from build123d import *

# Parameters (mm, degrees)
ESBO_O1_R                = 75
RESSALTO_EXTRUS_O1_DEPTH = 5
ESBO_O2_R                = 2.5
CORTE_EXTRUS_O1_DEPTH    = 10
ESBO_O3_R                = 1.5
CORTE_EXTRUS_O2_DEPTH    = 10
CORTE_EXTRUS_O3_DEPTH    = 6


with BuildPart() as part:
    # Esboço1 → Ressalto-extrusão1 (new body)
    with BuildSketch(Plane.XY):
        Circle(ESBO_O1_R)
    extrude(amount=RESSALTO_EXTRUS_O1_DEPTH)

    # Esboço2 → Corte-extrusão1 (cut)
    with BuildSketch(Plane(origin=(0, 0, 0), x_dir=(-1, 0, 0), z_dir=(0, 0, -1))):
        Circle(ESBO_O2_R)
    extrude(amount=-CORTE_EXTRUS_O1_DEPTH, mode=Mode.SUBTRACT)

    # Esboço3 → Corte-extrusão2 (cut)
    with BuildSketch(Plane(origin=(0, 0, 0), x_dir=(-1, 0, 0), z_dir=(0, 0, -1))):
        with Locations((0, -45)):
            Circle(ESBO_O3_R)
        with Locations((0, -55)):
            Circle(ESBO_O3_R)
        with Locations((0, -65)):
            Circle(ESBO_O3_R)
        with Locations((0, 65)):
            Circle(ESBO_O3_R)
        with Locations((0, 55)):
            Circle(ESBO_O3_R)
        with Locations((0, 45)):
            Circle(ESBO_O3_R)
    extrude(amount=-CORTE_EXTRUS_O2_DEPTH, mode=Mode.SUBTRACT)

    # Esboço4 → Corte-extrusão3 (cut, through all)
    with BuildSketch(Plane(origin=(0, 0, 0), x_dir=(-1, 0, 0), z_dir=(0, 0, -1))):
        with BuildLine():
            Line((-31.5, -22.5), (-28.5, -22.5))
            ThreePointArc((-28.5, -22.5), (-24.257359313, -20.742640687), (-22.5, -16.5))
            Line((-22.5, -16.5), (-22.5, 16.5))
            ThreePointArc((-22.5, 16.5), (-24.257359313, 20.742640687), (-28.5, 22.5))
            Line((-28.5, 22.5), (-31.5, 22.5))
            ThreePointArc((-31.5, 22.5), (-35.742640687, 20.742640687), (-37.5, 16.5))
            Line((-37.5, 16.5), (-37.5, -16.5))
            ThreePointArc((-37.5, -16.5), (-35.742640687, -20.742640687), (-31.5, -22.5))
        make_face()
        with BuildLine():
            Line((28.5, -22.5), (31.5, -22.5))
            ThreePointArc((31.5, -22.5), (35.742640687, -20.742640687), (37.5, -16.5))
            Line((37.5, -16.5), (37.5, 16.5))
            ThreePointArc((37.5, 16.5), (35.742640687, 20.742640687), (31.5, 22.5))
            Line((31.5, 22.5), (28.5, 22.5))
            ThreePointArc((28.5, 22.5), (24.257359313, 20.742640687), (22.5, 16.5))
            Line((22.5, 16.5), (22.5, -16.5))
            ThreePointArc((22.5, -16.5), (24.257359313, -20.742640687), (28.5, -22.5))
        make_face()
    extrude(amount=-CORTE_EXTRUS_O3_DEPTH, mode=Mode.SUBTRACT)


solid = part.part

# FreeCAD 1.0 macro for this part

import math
import FreeCAD as App
import Part
import Sketcher

doc = App.newDocument("Part")
params = doc.addObject("Spreadsheet::Sheet", "Params")
for row, (alias, value) in enumerate([
    ("sketch1_diameter", "150 mm"),
    ("pad1_length", "5 mm"),
    ("sketch2_diameter", "5 mm"),
    ("pocket1_length", "10 mm"),
    ("sketch3_diameter", "3 mm"),
    ("pocket2_length", "10 mm"),
    ("sketch4_radius", "6 mm"),
    ("sketch4_width", "3 mm"),
    ("sketch4_height", "33 mm"),
], start=1):
    params.set(f"A{row}", alias)
    params.set(f"B{row}", "=" + value)
    params.setAlias(f"B{row}", alias)

body = doc.addObject("PartDesign::Body", "Body")

# Sketch on XY plane
sketch1 = doc.addObject("Sketcher::SketchObject", "Sketch")
body.addObject(sketch1)
sketch1.AttachmentSupport = (doc.XY_Plane, [""])
sketch1.MapMode = "FlatFace"
sketch1.addGeometry(Part.Circle(App.Vector(0, 0, 0), App.Vector(0, 0, 1), 75), False)
sketch1.addConstraint([
    Sketcher.Constraint("Coincident", 0, 3, -1, 1),
    Sketcher.Constraint("Diameter", 0, 150.0),
])
sketch1.setExpression("Constraints[1]", "Params.sketch1_diameter")
pad1 = doc.addObject("PartDesign::Pad", "Pad")
body.addObject(pad1)
pad1.Profile = sketch1
pad1.setExpression("Length", "Params.pad1_length")

# Sketch on XY plane
sketch2 = doc.addObject("Sketcher::SketchObject", "Sketch001")
body.addObject(sketch2)
sketch2.AttachmentSupport = (doc.XY_Plane, [""])
sketch2.MapMode = "FlatFace"
sketch2.addGeometry(Part.Circle(App.Vector(0, 0, 0), App.Vector(0, 0, 1), 2.5), False)
sketch2.addConstraint([
    Sketcher.Constraint("Coincident", 0, 3, -1, 1),
    Sketcher.Constraint("Diameter", 0, 5.0),
])
sketch2.setExpression("Constraints[1]", "Params.sketch2_diameter")
pocket1 = doc.addObject("PartDesign::Pocket", "Pocket")
body.addObject(pocket1)
pocket1.Profile = sketch2
pocket1.setExpression("Length", "Params.pocket1_length")
pocket1.Reversed = True

# Sketch on XY plane
sketch3 = doc.addObject("Sketcher::SketchObject", "Sketch002")
body.addObject(sketch3)
sketch3.AttachmentSupport = (doc.XY_Plane, [""])
sketch3.MapMode = "FlatFace"
sketch3.addGeometry([
    Part.Circle(App.Vector(0, -45, 0), App.Vector(0, 0, 1), 1.5),  # 0
    Part.Circle(App.Vector(0, -55, 0), App.Vector(0, 0, 1), 1.5),  # 1
    Part.Circle(App.Vector(0, -65, 0), App.Vector(0, 0, 1), 1.5),  # 2
    Part.Circle(App.Vector(0, 65, 0), App.Vector(0, 0, 1), 1.5),  # 3
    Part.Circle(App.Vector(0, 55, 0), App.Vector(0, 0, 1), 1.5),  # 4
    Part.Circle(App.Vector(0, 45, 0), App.Vector(0, 0, 1), 1.5),  # 5
], False)
sketch3.addConstraint([
    Sketcher.Constraint("Equal", 0, 1),
    Sketcher.Constraint("Equal", 1, 2),
    Sketcher.Constraint("Equal", 2, 3),
    Sketcher.Constraint("Equal", 3, 4),
    Sketcher.Constraint("Equal", 4, 5),
    Sketcher.Constraint("Symmetric", 2, 3, 3, 3, -1, 1),
    Sketcher.Constraint("Symmetric", 1, 3, 4, 3, -1, 1),
    Sketcher.Constraint("Symmetric", 0, 3, 5, 3, -1, 1),
    Sketcher.Constraint("PointOnObject", 0, 3, -2),
    Sketcher.Constraint("PointOnObject", 1, 3, -2),
    Sketcher.Constraint("PointOnObject", 2, 3, -2),
    Sketcher.Constraint("Diameter", 0, 3.0),
    Sketcher.Constraint("DistanceY", 0, 3, -1, 1, 45.0),
    Sketcher.Constraint("DistanceY", 1, 3, -1, 1, 55.0),
    Sketcher.Constraint("DistanceY", 2, 3, -1, 1, 65.0),
])
sketch3.setExpression("Constraints[11]", "Params.sketch3_diameter")
pocket2 = doc.addObject("PartDesign::Pocket", "Pocket001")
body.addObject(pocket2)
pocket2.Profile = sketch3
pocket2.setExpression("Length", "Params.pocket2_length")
pocket2.Reversed = True

# Sketch on XY plane
sketch4 = doc.addObject("Sketcher::SketchObject", "Sketch003")
body.addObject(sketch4)
sketch4.AttachmentSupport = (doc.XY_Plane, [""])
sketch4.MapMode = "FlatFace"
sketch4.addGeometry([
    Part.LineSegment(App.Vector(31.5, -22.5, 0), App.Vector(28.5, -22.5, 0)),  # 0
    Part.ArcOfCircle(Part.Circle(App.Vector(28.5, -16.5, 0), App.Vector(0, 0, 1), 6), math.radians(180), math.radians(270)),  # 1
    Part.LineSegment(App.Vector(22.5, -16.5, 0), App.Vector(22.5, 16.5, 0)),  # 2
    Part.ArcOfCircle(Part.Circle(App.Vector(28.5, 16.5, 0), App.Vector(0, 0, 1), 6), math.radians(90), math.radians(180)),  # 3
    Part.LineSegment(App.Vector(28.5, 22.5, 0), App.Vector(31.5, 22.5, 0)),  # 4
    Part.ArcOfCircle(Part.Circle(App.Vector(31.5, 16.5, 0), App.Vector(0, 0, 1), 6), math.radians(0), math.radians(90)),  # 5
    Part.LineSegment(App.Vector(37.5, 16.5, 0), App.Vector(37.5, -16.5, 0)),  # 6
    Part.ArcOfCircle(Part.Circle(App.Vector(31.5, -16.5, 0), App.Vector(0, 0, 1), 6), math.radians(-90), math.radians(0)),  # 7
    Part.LineSegment(App.Vector(-28.5, -22.5, 0), App.Vector(-31.5, -22.5, 0)),  # 8
    Part.ArcOfCircle(Part.Circle(App.Vector(-31.5, -16.5, 0), App.Vector(0, 0, 1), 6), math.radians(180), math.radians(270)),  # 9
    Part.LineSegment(App.Vector(-37.5, -16.5, 0), App.Vector(-37.5, 16.5, 0)),  # 10
    Part.ArcOfCircle(Part.Circle(App.Vector(-31.5, 16.5, 0), App.Vector(0, 0, 1), 6), math.radians(90), math.radians(180)),  # 11
    Part.LineSegment(App.Vector(-31.5, 22.5, 0), App.Vector(-28.5, 22.5, 0)),  # 12
    Part.ArcOfCircle(Part.Circle(App.Vector(-28.5, 16.5, 0), App.Vector(0, 0, 1), 6), math.radians(0), math.radians(90)),  # 13
    Part.LineSegment(App.Vector(-22.5, 16.5, 0), App.Vector(-22.5, -16.5, 0)),  # 14
    Part.ArcOfCircle(Part.Circle(App.Vector(-28.5, -16.5, 0), App.Vector(0, 0, 1), 6), math.radians(-90), math.radians(0)),  # 15
], False)
sketch4.addConstraint([
    Sketcher.Constraint("Tangent", 0, 2, 1, 2),
    Sketcher.Constraint("Tangent", 1, 1, 2, 1),
    Sketcher.Constraint("Tangent", 2, 2, 3, 2),
    Sketcher.Constraint("Tangent", 3, 1, 4, 1),
    Sketcher.Constraint("Tangent", 4, 2, 5, 2),
    Sketcher.Constraint("Tangent", 5, 1, 6, 1),
    Sketcher.Constraint("Tangent", 6, 2, 7, 2),
    Sketcher.Constraint("Tangent", 7, 1, 0, 1),
    Sketcher.Constraint("Tangent", 8, 2, 9, 2),
    Sketcher.Constraint("Tangent", 9, 1, 10, 1),
    Sketcher.Constraint("Tangent", 10, 2, 11, 2),
    Sketcher.Constraint("Tangent", 11, 1, 12, 1),
    Sketcher.Constraint("Tangent", 12, 2, 13, 2),
    Sketcher.Constraint("Tangent", 13, 1, 14, 1),
    Sketcher.Constraint("Tangent", 14, 2, 15, 2),
    Sketcher.Constraint("Tangent", 15, 1, 8, 1),
    Sketcher.Constraint("Horizontal", 0),
    Sketcher.Constraint("Vertical", 2),
    Sketcher.Constraint("Horizontal", 4),
    Sketcher.Constraint("Vertical", 6),
    Sketcher.Constraint("Horizontal", 8),
    Sketcher.Constraint("Vertical", 10),
    Sketcher.Constraint("Horizontal", 12),
    Sketcher.Constraint("Vertical", 14),
    Sketcher.Constraint("Equal", 1, 3),
    Sketcher.Constraint("Equal", 3, 5),
    Sketcher.Constraint("Equal", 5, 7),
    Sketcher.Constraint("Equal", 7, 9),
    Sketcher.Constraint("Equal", 9, 11),
    Sketcher.Constraint("Equal", 11, 13),
    Sketcher.Constraint("Equal", 13, 15),
    Sketcher.Constraint("Symmetric", 5, 3, 9, 3, -1, 1),
    Sketcher.Constraint("Symmetric", 1, 3, 13, 3, -1, 1),
    Sketcher.Constraint("Horizontal", 7, 3, 9, 3),
    Sketcher.Constraint("Radius", 1, 6.0),
    Sketcher.Constraint("DistanceX", 0, 2, 0, 1, 3.0),
    Sketcher.Constraint("DistanceY", 2, 1, 2, 2, 33.0),
    Sketcher.Constraint("DistanceX", 9, 3, 1, 3, 60.0),
])
sketch4.setExpression("Constraints[34]", "Params.sketch4_radius")
sketch4.setExpression("Constraints[35]", "Params.sketch4_width")
sketch4.setExpression("Constraints[36]", "Params.sketch4_height")
pocket3 = doc.addObject("PartDesign::Pocket", "Pocket002")
body.addObject(pocket3)
pocket3.Profile = sketch4
pocket3.Type = "ThroughAll"
pocket3.Reversed = True

doc.recompute()
